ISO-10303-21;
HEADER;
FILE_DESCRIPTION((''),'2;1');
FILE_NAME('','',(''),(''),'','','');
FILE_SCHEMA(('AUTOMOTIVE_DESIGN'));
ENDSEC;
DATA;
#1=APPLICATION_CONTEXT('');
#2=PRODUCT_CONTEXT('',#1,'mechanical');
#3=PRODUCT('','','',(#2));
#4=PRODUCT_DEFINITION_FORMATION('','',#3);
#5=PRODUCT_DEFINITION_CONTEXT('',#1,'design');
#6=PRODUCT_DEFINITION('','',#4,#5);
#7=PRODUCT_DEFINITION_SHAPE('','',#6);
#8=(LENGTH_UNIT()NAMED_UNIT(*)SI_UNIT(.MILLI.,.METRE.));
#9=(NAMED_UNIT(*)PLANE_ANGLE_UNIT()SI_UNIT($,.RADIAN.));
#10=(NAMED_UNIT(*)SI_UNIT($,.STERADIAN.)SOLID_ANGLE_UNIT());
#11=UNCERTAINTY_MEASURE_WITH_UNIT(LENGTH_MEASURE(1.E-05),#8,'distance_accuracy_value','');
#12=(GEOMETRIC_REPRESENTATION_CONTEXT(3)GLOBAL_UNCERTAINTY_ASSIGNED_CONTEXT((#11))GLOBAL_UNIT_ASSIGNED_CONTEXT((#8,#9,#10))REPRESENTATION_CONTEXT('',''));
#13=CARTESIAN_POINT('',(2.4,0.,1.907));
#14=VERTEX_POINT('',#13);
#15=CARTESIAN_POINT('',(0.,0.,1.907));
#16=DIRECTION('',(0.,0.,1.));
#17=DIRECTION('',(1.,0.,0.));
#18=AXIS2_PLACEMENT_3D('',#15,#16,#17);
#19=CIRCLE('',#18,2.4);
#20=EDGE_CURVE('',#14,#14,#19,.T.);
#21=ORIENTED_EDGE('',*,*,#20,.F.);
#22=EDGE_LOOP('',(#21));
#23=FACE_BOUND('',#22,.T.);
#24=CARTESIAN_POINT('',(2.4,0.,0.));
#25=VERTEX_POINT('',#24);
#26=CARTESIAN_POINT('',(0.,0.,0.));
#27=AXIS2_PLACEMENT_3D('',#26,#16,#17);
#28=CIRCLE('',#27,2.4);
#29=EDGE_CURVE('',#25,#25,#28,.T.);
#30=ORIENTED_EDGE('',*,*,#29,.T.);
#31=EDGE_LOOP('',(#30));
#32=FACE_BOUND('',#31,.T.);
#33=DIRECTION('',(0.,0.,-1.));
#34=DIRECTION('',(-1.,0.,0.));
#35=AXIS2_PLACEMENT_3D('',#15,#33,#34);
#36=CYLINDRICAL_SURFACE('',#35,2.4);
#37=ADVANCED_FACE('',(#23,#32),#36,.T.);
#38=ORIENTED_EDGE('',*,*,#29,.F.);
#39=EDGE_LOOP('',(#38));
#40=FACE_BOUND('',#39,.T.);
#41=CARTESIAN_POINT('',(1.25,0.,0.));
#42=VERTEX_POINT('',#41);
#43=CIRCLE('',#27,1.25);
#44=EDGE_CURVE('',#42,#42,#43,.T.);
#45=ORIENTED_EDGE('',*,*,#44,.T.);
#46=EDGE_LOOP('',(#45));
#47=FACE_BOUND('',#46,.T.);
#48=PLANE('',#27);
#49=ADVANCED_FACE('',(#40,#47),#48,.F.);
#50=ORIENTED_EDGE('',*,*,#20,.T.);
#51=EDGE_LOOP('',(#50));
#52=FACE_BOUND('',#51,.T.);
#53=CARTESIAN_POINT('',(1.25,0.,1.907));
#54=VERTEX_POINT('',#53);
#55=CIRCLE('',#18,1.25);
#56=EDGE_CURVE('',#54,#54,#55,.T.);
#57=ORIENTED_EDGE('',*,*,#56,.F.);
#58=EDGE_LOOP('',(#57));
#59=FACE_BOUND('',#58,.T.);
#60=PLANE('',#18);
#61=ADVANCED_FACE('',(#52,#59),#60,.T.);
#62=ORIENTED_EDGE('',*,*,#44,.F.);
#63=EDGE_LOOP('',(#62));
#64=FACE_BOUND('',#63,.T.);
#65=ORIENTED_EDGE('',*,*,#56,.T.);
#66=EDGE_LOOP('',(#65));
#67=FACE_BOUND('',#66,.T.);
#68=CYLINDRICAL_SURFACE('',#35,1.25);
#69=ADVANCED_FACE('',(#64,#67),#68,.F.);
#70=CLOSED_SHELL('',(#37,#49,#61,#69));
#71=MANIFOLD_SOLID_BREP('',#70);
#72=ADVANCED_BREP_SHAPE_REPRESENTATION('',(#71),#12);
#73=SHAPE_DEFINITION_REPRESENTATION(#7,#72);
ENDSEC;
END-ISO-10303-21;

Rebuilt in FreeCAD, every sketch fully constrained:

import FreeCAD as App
import Part
import Sketcher

V = App.Vector
Q = App.Units.Quantity

doc = App.newDocument("Part")
body = doc.addObject("PartDesign::Body", "Body")

# Sketch on XY plane
sketch1 = doc.addObject("Sketcher::SketchObject", "Sketch")
body.addObject(sketch1)
sketch1.AttachmentSupport = (doc.XY_Plane, [""])
sketch1.MapMode = "FlatFace"
sketch1.addGeometry([
    Part.Circle(V(0, 0, 0), V(0, 0, 1), 2.4),
    Part.Circle(V(0, 0, 0), V(0, 0, 1), 1.2),
], False)
sketch1.addConstraint([
    Sketcher.Constraint("Coincident", 0, 3, -1, 1),
    Sketcher.Constraint("Coincident", 1, 3, -1, 1),
    Sketcher.Constraint("Diameter", 0, Q("4.8 mm")),
    Sketcher.Constraint("Diameter", 1, Q("2.5 mm")),
])
pad1 = doc.addObject("PartDesign::Pad", "Pad")
body.addObject(pad1)
pad1.Profile = sketch1
pad1.Length = 1.907

doc.recompute()
